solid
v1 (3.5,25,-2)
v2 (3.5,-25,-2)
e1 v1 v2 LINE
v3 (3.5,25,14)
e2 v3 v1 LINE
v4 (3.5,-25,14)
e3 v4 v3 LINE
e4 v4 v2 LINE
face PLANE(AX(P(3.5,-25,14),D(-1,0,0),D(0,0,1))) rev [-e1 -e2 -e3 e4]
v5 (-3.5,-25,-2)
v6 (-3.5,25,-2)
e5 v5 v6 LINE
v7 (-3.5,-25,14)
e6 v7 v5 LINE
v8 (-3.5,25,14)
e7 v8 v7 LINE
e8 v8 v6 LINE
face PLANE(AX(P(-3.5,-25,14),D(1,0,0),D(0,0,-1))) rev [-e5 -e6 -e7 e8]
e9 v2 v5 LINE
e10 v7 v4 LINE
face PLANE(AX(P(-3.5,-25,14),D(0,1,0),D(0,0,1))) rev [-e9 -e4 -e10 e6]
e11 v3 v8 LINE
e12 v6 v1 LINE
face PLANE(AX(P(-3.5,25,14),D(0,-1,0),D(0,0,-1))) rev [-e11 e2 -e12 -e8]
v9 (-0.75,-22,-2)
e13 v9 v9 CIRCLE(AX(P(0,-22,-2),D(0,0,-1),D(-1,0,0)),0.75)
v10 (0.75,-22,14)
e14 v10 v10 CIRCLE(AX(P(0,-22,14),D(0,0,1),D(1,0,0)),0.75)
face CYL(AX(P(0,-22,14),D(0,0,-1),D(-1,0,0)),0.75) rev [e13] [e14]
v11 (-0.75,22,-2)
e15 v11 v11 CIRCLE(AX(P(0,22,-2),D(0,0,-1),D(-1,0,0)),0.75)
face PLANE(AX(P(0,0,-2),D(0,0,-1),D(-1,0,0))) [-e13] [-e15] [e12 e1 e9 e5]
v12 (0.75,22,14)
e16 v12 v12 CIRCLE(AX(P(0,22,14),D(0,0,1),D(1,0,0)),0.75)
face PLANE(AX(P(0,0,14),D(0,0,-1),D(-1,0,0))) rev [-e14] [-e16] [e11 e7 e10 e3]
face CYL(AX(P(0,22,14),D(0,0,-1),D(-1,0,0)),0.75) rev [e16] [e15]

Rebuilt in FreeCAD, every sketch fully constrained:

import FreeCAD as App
import Part
import Sketcher

V = App.Vector
Q = App.Units.Quantity


def add_polygon(sketch, points):
    """Adds a closed chain of lines whose ends are joined by coincident constraints."""
    first, n = sketch.GeometryCount, len(points)
    for a, b in zip(points, points[1:] + points[:1]):
        sketch.addGeometry(Part.LineSegment(App.Vector(*a, 0), App.Vector(*b, 0)), False)
    for i in range(n):
        sketch.addConstraint(Sketcher.Constraint("Coincident", first + i, 2, first + (i + 1) % n, 1))

doc = App.newDocument("Part")
body = doc.addObject("PartDesign::Body", "Body")

# Sketch on XY plane
sketch1 = body.newObject("Sketcher::SketchObject", "Sketch")
sketch1.AttachmentSupport = (doc.getObject("XY_Plane"), [""])
sketch1.MapMode = "FlatFace"
add_polygon(sketch1, [(-3.5, 25), (-3.5, -25), (3.5, -25), (3.5, 25)])  # lines 0-3
sketch1.addGeometry(Part.Circle(V(0, -22, 0), V(0, 0, 1), 0.8), False)  # 4
sketch1.addGeometry(Part.Circle(V(0, 22, 0), V(0, 0, 1), 0.8), False)  # 5
sketch1.addConstraint([
    Sketcher.Constraint("Vertical", 0),
    Sketcher.Constraint("Horizontal", 1),
    Sketcher.Constraint("Vertical", 2),
    Sketcher.Constraint("Horizontal", 3),
    Sketcher.Constraint("Equal", 4, 5),
    Sketcher.Constraint("Symmetric", 4, 3, 5, 3, -1, 1),
    Sketcher.Constraint("Symmetric", 0, 2, 2, 2, -1, 1),
    Sketcher.Constraint("PointOnObject", 4, 3, -2),
    Sketcher.Constraint("Diameter", 4, Q("1.5 mm")),
    Sketcher.Constraint("DistanceX", 1, 1, 1, 2, Q("7 mm")),
    Sketcher.Constraint("DistanceY", 0, 2, 0, 1, Q("50 mm")),
    Sketcher.Constraint("DistanceY", 4, 3, -1, 1, Q("22 mm")),
])
pad1 = body.newObject("PartDesign::Pad", "Pad")
pad1.Profile = sketch1
pad1.Length = 14

# Sketch on XY plane
sketch2 = body.newObject("Sketcher::SketchObject", "Sketch001")
sketch2.AttachmentSupport = (doc.getObject("XY_Plane"), [""])
sketch2.MapMode = "FlatFace"
sketch2.AttachmentOffset = App.Placement(V(0, 0, -2), App.Rotation())
add_polygon(sketch2, [(3.5, 25), (3.5, -25), (-3.5, -25), (-3.5, 25)])  # lines 0-3
sketch2.addGeometry(Part.Circle(V(0, -22, 0), V(0, 0, 1), 0.8), False)  # 4
sketch2.addGeometry(Part.Circle(V(0, 22, 0), V(0, 0, 1), 0.8), False)  # 5
sketch2.addConstraint([
    Sketcher.Constraint("Vertical", 0),
    Sketcher.Constraint("Horizontal", 1),
    Sketcher.Constraint("Vertical", 2),
    Sketcher.Constraint("Horizontal", 3),
    Sketcher.Constraint("Equal", 4, 5),
    Sketcher.Constraint("Symmetric", 4, 3, 5, 3, -1, 1),
    Sketcher.Constraint("Symmetric", 0, 2, 2, 2, -1, 1),
    Sketcher.Constraint("PointOnObject", 4, 3, -2),
    Sketcher.Constraint("Diameter", 4, Q("1.5 mm")),
    Sketcher.Constraint("DistanceX", 1, 2, 1, 1, Q("7 mm")),
    Sketcher.Constraint("DistanceY", 0, 2, 0, 1, Q("50 mm")),
    Sketcher.Constraint("DistanceY", 4, 3, -1, 1, Q("22 mm")),
])
pad2 = body.newObject("PartDesign::Pad", "Pad001")
pad2.Profile = sketch2
pad2.Length = 2

doc.recompute()
